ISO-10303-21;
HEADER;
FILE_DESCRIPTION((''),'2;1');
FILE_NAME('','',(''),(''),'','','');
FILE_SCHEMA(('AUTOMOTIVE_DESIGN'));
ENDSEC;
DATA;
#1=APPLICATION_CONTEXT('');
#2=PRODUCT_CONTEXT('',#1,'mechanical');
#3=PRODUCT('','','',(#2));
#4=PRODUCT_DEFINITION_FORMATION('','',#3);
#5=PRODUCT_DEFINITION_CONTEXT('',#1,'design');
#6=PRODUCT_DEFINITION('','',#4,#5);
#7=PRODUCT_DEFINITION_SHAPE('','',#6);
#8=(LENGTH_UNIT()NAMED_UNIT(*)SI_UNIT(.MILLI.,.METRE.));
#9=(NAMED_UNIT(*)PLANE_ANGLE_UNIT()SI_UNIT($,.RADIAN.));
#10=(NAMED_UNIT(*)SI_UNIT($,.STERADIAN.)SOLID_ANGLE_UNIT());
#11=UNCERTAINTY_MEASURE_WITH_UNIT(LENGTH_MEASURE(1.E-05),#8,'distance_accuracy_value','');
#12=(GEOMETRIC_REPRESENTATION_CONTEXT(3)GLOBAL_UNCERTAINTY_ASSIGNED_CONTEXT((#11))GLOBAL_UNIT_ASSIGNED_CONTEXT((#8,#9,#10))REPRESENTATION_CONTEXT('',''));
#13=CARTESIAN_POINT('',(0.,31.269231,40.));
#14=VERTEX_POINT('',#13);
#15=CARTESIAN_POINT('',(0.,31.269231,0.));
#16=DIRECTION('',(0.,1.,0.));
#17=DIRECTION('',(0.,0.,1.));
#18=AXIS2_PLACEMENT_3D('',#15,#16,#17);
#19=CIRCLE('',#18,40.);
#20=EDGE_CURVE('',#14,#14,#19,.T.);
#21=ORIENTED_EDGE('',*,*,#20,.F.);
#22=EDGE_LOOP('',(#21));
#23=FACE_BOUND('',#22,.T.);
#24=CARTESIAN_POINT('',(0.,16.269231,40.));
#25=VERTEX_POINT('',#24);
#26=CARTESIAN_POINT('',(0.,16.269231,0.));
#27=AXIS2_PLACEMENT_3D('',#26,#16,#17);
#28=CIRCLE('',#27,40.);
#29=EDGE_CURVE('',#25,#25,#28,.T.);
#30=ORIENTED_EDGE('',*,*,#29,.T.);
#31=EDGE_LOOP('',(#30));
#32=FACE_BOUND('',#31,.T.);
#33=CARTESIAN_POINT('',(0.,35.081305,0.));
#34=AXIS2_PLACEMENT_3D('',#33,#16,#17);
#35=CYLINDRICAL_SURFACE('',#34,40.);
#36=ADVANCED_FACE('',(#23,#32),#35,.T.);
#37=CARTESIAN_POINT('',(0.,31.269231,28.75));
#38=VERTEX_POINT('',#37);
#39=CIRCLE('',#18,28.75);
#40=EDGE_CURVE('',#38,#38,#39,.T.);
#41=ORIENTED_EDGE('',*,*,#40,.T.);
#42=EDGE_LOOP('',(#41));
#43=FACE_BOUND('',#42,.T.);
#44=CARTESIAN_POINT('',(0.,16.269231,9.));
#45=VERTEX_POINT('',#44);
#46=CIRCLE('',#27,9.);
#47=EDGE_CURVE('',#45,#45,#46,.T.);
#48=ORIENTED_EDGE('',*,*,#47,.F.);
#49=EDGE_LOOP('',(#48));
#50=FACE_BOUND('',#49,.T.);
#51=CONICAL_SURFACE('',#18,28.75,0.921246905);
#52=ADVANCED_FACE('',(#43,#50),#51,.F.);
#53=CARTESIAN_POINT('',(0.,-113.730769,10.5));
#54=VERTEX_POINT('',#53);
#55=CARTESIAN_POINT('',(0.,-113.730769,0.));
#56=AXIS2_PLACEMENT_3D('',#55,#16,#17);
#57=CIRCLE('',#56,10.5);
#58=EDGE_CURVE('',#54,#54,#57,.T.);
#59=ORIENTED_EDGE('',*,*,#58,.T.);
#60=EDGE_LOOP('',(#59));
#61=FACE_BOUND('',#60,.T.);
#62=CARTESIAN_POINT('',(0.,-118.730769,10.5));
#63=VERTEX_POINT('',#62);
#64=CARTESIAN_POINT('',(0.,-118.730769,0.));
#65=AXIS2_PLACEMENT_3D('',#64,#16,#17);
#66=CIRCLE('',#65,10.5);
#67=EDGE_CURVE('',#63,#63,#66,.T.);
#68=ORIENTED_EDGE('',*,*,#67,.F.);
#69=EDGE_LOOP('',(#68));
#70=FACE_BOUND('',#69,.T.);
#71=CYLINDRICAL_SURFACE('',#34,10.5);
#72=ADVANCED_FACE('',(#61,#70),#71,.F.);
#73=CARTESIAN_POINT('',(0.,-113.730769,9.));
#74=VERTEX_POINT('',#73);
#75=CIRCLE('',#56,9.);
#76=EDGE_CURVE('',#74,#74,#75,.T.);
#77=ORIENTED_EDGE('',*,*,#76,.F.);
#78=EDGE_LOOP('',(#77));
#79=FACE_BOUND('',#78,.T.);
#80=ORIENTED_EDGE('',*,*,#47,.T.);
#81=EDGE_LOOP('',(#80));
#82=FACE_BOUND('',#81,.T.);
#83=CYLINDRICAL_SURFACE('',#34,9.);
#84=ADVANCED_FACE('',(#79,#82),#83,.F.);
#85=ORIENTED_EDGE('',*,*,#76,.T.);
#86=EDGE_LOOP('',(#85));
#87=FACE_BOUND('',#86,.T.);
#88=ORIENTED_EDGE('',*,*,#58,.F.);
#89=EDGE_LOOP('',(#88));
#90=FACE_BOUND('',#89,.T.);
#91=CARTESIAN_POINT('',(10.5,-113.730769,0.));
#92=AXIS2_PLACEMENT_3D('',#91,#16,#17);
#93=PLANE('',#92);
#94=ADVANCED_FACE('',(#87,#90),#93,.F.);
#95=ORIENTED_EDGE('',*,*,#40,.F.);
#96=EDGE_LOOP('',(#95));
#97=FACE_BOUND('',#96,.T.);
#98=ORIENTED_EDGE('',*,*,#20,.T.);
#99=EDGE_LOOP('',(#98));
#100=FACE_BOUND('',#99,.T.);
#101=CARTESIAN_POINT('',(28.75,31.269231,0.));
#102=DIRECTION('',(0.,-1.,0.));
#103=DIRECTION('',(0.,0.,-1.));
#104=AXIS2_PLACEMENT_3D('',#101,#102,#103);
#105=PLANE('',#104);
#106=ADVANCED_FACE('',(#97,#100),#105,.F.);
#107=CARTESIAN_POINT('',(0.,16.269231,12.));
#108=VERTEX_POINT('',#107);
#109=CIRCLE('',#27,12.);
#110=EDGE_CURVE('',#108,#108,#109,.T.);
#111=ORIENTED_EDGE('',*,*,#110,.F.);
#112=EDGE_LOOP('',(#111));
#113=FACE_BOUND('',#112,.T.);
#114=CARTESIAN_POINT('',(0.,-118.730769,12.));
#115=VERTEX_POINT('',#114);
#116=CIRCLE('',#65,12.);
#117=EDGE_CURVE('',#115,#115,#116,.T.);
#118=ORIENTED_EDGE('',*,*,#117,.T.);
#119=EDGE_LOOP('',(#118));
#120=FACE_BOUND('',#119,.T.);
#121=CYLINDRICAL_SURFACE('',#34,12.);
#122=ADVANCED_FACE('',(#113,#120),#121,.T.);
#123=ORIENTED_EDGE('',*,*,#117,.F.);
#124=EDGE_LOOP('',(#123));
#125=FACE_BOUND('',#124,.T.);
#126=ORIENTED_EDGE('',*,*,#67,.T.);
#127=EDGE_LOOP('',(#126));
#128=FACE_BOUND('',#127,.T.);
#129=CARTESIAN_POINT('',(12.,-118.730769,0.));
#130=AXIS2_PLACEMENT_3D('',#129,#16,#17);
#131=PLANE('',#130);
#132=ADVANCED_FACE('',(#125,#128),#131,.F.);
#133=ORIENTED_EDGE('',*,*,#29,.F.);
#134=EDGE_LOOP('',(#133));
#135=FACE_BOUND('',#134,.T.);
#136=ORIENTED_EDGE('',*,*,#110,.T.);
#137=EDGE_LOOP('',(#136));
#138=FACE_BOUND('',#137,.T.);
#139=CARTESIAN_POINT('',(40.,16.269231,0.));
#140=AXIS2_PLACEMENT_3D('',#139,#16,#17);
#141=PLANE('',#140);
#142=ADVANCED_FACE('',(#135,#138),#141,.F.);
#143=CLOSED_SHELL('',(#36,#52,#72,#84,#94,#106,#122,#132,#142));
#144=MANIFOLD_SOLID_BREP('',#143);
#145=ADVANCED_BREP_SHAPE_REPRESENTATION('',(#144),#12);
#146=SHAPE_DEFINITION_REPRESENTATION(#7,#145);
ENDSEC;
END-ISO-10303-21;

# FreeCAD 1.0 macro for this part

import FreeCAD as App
import Part
import Sketcher

V = App.Vector


def add_polygon(sketch, points):
    """Adds a closed chain of lines whose ends are joined by coincident constraints."""
    first, n = sketch.GeometryCount, len(points)
    for a, b in zip(points, points[1:] + points[:1]):
        sketch.addGeometry(Part.LineSegment(App.Vector(*a, 0), App.Vector(*b, 0)), False)
    for i in range(n):
        sketch.addConstraint(Sketcher.Constraint("Coincident", first + i, 2, first + (i + 1) % n, 1))

doc = App.newDocument("Part")
body = doc.addObject("PartDesign::Body", "Body")

# Sketch on XY plane
sketch1 = doc.addObject("Sketcher::SketchObject", "Sketch")
body.addObject(sketch1)
sketch1.AttachmentSupport = (doc.XY_Plane, [""])
sketch1.MapMode = "FlatFace"
add_polygon(sketch1, [(9, 16.3), (9, -113.7), (10.5, -113.7), (10.5, -118.7), (12, -118.7), (12, 16.3), (40, 16.3), (40, 31.3), (28.8, 31.3)])  # lines 0-8
sketch1.addConstraint(Sketcher.Constraint("Vertical", 0))
sketch1.addConstraint(Sketcher.Constraint("Horizontal", 1))
sketch1.addConstraint(Sketcher.Constraint("Vertical", 2))
sketch1.addConstraint(Sketcher.Constraint("Horizontal", 3))
sketch1.addConstraint(Sketcher.Constraint("Vertical", 4))
sketch1.addConstraint(Sketcher.Constraint("Horizontal", 5))
sketch1.addConstraint(Sketcher.Constraint("Vertical", 6))
sketch1.addConstraint(Sketcher.Constraint("Horizontal", 7))
sketch1.addConstraint(Sketcher.Constraint("Horizontal", 5, 2, 8, 2))
sketch1.addConstraint(Sketcher.Constraint("Equal", 1, 3))
sketch1.addConstraint(Sketcher.Constraint("DistanceX", 5, 1, 5, 2, 28.0))
sketch1.addConstraint(Sketcher.Constraint("DistanceY", 0, 2, 0, 1, 130.0))
sketch1.addConstraint(Sketcher.Constraint("DistanceY", 2, 2, 2, 1, 5.0))
sketch1.addConstraint(Sketcher.Constraint("DistanceY", 6, 1, 6, 2, 15.0))
sketch1.addConstraint(Sketcher.Constraint("DistanceX", 1, 1, 1, 2, 1.5))
sketch1.addConstraint(Sketcher.Constraint("DistanceX", -1, 1, 0, 2, 9.0))
sketch1.addConstraint(Sketcher.Constraint("DistanceX", 7, 2, 7, 1, 11.25))
sketch1.addConstraint(Sketcher.Constraint("DistanceY", 0, 2, -1, 1, 113.730769))
revolution = doc.addObject("PartDesign::Revolution", "Revolution")
body.addObject(revolution)
revolution.Profile = sketch1
revolution.ReferenceAxis = (sketch1, ["V_Axis"])
revolution.Angle = 360

doc.recompute()
